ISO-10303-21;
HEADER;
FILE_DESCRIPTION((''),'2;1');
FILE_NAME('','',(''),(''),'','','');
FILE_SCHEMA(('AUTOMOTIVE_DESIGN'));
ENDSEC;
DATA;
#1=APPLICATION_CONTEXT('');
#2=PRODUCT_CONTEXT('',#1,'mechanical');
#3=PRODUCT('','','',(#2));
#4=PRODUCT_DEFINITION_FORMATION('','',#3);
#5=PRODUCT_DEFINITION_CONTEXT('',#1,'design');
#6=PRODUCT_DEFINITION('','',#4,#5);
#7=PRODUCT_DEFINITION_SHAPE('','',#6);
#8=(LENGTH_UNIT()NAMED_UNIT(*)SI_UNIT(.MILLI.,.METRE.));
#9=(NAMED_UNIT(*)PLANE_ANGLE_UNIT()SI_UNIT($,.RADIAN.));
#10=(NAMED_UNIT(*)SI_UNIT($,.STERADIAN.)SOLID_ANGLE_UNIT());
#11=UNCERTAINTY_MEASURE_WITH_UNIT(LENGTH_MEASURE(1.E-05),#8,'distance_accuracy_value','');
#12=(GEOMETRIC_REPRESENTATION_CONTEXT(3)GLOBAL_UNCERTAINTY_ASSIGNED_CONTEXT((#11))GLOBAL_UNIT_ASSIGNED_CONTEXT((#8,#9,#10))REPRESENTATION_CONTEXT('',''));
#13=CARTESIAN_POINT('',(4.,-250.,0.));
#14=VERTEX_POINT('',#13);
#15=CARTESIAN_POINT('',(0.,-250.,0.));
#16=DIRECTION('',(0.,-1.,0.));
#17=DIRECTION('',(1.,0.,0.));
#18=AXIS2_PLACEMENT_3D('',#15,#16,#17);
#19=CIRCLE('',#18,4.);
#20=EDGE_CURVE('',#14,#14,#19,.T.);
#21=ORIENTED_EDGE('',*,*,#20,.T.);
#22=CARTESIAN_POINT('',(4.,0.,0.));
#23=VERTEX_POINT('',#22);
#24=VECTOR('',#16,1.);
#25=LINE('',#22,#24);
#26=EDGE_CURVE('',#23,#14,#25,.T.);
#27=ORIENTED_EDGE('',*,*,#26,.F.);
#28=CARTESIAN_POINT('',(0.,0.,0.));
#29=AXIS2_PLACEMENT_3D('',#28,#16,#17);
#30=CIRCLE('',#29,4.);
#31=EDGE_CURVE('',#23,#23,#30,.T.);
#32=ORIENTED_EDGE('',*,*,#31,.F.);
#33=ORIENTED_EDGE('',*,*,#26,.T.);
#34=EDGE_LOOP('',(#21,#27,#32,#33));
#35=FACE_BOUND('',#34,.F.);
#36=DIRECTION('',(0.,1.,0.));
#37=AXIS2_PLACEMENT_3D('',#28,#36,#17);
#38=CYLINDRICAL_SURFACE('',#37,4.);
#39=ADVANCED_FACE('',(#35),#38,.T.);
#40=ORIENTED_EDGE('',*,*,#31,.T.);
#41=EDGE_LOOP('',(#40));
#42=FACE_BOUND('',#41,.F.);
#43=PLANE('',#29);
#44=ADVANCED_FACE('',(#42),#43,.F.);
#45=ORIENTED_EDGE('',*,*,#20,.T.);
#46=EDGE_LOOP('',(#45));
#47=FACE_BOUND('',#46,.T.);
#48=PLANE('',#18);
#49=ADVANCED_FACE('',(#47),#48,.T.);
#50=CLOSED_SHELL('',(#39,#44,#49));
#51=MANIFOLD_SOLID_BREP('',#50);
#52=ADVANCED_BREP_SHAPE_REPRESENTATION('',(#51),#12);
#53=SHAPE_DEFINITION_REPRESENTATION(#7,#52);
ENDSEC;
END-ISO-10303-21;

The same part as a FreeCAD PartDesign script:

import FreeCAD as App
import Part
import Sketcher
from FreeCAD import Vector
Q = App.Units.Quantity

doc = App.newDocument("Part")
body = doc.addObject("PartDesign::Body", "Body")

# Sketch on XZ plane
sketch1 = body.newObject("Sketcher::SketchObject", "Sketch")
sketch1.AttachmentSupport = (doc.getObject("XZ_Plane"), [""])
sketch1.MapMode = "FlatFace"
sketch1.addGeometry(Part.Circle(Vector(0, 0, 0), Vector(0, 0, 1), 4), False)
sketch1.addConstraint(Sketcher.Constraint("Coincident", 0, 3, -1, 1))
sketch1.addConstraint(Sketcher.Constraint("Diameter", 0, Q("8 mm")))
pad1 = body.newObject("PartDesign::Pad", "Pad")
pad1.Profile = sketch1
pad1.Length = 250

doc.recompute()
